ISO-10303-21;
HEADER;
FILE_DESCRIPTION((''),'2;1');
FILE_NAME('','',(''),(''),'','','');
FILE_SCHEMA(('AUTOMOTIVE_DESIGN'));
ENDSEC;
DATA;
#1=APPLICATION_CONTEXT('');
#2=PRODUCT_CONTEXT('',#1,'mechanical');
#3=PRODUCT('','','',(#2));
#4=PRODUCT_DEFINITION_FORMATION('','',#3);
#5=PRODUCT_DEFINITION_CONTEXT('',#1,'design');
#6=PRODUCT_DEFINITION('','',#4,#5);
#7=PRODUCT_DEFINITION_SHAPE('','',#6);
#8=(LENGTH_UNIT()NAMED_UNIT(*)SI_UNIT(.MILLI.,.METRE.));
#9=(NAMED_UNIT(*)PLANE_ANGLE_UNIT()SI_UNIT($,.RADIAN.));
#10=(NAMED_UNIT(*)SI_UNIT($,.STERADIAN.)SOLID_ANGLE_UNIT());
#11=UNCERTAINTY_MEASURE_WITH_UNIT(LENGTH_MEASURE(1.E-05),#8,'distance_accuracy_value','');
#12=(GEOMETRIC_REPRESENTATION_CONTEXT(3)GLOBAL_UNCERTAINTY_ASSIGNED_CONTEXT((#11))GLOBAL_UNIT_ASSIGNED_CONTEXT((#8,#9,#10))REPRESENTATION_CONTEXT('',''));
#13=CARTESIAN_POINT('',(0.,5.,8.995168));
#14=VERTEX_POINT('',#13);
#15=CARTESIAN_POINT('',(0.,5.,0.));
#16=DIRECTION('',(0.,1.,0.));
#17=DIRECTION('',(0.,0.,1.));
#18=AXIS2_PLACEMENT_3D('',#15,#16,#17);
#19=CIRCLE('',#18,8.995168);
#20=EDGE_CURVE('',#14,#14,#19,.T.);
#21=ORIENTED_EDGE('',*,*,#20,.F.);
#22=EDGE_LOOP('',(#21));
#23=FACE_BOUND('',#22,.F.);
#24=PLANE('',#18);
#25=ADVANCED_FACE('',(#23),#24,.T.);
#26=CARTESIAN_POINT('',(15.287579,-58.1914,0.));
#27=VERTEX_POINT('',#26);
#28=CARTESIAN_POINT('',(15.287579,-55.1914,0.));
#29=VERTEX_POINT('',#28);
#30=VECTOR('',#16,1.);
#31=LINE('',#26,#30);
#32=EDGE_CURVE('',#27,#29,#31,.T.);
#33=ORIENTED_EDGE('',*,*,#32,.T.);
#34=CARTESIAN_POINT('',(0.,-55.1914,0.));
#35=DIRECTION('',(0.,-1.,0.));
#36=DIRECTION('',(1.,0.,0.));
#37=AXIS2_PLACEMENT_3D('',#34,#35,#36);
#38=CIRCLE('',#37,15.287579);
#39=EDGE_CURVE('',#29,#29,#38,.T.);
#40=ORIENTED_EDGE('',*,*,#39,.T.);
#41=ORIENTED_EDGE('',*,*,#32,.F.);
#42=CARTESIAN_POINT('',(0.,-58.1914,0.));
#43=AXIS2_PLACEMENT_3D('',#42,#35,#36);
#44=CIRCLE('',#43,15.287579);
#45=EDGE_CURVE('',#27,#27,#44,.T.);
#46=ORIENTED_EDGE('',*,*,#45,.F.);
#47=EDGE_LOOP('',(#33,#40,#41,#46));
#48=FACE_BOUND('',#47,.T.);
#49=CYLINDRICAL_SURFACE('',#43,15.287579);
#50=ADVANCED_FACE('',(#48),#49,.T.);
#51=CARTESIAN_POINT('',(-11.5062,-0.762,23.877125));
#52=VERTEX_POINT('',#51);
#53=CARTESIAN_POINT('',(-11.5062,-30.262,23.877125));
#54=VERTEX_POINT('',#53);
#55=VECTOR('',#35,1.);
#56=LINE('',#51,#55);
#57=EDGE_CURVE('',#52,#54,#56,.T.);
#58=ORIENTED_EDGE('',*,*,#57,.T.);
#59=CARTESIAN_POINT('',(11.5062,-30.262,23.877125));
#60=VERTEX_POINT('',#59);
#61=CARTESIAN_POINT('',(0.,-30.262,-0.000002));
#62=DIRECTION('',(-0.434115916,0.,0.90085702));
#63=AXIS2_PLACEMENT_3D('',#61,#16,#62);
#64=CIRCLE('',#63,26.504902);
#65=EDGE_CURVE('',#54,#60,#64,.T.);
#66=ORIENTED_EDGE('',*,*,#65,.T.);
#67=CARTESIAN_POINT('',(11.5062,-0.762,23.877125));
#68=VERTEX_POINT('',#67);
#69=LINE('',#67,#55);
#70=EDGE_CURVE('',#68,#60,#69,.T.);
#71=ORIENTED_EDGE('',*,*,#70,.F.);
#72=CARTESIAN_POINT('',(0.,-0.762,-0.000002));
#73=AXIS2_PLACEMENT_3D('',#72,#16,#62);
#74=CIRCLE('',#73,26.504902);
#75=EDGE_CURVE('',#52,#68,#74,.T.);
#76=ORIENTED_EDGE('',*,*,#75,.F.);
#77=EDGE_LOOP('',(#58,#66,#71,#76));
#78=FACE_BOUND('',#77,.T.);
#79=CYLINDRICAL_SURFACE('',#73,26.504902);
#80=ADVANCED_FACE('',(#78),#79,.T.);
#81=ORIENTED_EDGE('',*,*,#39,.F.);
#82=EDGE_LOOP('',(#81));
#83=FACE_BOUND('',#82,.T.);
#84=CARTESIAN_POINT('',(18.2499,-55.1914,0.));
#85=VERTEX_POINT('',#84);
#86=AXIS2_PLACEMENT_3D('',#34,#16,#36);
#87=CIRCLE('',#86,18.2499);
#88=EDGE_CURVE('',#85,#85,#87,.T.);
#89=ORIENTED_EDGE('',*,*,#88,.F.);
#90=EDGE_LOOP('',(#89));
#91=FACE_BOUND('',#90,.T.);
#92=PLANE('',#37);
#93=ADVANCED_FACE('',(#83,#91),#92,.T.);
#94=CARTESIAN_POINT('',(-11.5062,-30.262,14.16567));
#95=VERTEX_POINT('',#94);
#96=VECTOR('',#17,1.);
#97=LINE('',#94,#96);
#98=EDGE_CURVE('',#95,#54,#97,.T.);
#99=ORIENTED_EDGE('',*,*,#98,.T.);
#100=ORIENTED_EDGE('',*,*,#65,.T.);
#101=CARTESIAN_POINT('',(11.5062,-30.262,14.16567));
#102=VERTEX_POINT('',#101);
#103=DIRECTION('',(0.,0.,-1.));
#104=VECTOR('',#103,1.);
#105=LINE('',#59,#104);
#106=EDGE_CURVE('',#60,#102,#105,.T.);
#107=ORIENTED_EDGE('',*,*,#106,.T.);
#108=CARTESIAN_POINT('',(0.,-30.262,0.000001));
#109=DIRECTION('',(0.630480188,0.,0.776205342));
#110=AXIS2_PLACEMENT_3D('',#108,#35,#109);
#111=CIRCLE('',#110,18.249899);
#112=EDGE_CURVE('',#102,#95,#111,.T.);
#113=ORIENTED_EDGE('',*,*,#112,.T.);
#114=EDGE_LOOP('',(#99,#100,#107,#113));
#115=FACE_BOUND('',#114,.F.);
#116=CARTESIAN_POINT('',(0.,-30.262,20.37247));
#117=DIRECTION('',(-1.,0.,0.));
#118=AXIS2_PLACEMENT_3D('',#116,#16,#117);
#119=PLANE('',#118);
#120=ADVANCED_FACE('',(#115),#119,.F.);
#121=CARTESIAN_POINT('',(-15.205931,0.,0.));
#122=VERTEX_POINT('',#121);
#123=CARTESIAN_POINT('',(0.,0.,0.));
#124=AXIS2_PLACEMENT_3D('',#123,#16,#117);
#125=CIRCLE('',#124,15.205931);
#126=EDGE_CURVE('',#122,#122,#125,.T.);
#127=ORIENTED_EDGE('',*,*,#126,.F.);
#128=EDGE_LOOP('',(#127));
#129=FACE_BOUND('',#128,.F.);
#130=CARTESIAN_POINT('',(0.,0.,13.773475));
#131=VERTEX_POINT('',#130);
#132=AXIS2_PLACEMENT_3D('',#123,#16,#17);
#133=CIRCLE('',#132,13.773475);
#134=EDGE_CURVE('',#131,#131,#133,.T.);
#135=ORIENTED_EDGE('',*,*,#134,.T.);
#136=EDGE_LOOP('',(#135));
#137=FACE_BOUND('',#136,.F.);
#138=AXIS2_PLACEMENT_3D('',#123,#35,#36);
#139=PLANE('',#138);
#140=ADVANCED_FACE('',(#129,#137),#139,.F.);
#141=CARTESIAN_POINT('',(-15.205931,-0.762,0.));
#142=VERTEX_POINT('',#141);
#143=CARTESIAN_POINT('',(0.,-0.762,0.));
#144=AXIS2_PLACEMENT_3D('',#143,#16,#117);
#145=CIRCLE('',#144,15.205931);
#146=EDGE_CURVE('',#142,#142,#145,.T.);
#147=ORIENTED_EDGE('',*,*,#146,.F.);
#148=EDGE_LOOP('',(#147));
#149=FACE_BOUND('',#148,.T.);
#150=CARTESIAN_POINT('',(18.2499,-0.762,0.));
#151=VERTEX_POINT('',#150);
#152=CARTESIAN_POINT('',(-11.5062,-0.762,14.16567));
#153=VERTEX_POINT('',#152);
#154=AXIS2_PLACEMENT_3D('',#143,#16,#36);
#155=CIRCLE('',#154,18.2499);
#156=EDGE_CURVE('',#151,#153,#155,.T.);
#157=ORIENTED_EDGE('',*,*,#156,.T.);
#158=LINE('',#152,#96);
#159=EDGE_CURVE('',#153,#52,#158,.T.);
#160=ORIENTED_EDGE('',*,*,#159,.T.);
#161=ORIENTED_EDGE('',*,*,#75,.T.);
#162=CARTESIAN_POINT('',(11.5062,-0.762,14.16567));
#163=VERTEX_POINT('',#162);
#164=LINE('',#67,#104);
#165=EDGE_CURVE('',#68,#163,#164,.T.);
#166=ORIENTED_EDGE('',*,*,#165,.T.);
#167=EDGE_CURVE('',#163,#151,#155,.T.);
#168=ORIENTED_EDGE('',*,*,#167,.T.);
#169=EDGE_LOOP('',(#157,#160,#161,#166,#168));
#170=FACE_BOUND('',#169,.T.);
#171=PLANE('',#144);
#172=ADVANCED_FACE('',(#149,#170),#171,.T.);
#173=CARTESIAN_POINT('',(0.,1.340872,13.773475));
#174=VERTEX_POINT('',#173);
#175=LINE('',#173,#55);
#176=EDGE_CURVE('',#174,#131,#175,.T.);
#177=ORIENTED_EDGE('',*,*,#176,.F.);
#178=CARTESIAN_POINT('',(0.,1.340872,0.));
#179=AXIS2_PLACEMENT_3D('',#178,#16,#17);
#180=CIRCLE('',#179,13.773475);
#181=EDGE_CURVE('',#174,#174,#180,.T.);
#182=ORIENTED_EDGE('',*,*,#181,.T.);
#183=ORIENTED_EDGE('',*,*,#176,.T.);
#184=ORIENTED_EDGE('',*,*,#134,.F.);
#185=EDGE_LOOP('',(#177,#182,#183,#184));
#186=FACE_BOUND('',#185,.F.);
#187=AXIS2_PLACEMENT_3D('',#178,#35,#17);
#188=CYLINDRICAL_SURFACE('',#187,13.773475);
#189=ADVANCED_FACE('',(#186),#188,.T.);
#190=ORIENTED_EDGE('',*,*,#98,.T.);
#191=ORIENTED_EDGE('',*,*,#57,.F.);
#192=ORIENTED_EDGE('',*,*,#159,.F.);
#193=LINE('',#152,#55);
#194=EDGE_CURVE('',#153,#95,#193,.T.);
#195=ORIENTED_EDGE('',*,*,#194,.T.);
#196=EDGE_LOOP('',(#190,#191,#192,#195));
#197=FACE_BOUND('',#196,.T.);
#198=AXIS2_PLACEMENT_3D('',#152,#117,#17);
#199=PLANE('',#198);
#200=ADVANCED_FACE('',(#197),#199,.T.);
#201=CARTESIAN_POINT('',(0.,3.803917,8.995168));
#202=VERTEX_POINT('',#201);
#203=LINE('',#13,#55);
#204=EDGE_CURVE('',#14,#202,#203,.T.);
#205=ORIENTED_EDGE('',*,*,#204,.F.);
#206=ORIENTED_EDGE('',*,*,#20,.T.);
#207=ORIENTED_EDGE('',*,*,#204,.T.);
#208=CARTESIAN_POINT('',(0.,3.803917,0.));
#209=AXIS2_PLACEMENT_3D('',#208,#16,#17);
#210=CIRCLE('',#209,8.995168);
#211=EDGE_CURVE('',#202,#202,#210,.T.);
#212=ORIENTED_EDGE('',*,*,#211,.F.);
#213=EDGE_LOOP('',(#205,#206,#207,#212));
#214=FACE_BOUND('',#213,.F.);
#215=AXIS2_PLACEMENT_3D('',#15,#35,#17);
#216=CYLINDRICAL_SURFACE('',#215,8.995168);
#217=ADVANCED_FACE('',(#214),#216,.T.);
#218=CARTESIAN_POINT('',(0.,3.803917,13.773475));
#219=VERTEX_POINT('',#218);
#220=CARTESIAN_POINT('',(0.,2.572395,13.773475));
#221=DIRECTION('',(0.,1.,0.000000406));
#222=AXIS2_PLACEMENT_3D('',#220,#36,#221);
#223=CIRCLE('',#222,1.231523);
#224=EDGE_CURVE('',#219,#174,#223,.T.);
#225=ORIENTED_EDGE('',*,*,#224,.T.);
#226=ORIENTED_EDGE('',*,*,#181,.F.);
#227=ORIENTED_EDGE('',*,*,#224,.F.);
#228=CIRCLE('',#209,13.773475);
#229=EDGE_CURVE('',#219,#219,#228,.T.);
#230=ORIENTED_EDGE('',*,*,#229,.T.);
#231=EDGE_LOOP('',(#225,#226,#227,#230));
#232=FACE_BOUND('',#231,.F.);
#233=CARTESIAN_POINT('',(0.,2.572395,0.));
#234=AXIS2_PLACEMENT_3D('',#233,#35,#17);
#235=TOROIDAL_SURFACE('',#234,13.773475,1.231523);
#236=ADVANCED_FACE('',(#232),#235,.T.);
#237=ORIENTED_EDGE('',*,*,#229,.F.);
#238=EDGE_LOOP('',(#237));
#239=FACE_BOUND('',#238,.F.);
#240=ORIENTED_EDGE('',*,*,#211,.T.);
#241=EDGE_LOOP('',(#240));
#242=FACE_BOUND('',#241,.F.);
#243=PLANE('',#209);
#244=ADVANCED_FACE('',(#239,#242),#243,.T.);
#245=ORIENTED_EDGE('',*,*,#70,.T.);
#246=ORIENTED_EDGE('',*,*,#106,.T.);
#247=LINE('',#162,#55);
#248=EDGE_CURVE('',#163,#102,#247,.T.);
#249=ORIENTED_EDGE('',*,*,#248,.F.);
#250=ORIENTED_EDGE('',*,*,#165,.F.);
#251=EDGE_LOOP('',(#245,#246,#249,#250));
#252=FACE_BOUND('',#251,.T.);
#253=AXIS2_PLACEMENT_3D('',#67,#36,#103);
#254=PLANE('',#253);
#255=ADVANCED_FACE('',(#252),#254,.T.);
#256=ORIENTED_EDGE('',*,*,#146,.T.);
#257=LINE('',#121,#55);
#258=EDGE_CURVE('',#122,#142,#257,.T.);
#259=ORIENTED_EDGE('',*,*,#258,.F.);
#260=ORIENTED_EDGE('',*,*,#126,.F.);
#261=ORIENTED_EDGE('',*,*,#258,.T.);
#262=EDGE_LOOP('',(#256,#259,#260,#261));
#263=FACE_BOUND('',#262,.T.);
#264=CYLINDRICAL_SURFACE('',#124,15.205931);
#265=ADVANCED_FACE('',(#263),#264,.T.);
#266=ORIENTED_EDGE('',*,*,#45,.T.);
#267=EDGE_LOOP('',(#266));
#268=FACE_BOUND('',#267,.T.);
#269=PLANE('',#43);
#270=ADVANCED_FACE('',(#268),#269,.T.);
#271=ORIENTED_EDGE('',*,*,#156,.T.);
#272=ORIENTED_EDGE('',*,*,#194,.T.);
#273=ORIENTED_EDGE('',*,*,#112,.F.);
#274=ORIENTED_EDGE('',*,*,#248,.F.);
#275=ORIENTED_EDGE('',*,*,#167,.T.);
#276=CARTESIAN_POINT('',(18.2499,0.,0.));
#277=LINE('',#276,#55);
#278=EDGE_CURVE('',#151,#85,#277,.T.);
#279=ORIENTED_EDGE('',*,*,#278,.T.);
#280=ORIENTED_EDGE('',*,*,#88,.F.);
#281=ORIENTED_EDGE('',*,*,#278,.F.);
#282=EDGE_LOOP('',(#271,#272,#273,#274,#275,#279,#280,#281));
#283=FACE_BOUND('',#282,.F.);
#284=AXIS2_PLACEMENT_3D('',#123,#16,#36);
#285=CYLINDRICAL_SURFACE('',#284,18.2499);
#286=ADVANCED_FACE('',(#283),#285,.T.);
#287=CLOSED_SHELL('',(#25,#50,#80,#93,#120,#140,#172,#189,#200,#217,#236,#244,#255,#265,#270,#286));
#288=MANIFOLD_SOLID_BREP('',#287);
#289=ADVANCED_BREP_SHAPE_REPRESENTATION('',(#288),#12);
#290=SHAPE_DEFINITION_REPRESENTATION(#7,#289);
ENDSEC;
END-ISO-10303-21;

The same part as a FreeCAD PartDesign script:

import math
import FreeCAD as App
import Part
import Sketcher

V = App.Vector
Q = App.Units.Quantity

doc = App.newDocument("Part")
body = doc.addObject("PartDesign::Body", "Body")

# Sketch on XZ plane
sketch1 = doc.addObject("Sketcher::SketchObject", "Sketch")
body.addObject(sketch1)
sketch1.AttachmentSupport = (doc.XZ_Plane, [""])
sketch1.MapMode = "FlatFace"
sketch1.addGeometry(Part.Circle(V(0, 0, 0), V(0, 0, 1), 18), False)
sketch1.addConstraint([
    Sketcher.Constraint("Coincident", 0, 3, -1, 1),
    Sketcher.Constraint("Diameter", 0, Q("1.437 in")),
])
pad1 = doc.addObject("PartDesign::Pad", "Pad")
body.addObject(pad1)
pad1.Profile = sketch1
pad1.Length = Q("2.291 in")

# Sketch on XZ plane
sketch2 = doc.addObject("Sketcher::SketchObject", "Sketch001")
body.addObject(sketch2)
sketch2.AttachmentSupport = (doc.XZ_Plane, [""])
sketch2.MapMode = "FlatFace"
sketch2.addGeometry([
    Part.Circle(V(0, 0, 0), V(0, 0, 1), 20),
    Part.Circle(V(0, 0, 0), V(0, 0, 1), 15),
], False)
sketch2.addConstraint([
    Sketcher.Constraint("Coincident", 0, 3, -1, 1),
    Sketcher.Constraint("Coincident", 1, 3, -1, 1),
    Sketcher.Constraint("Diameter", 1, 30.411862),
    Sketcher.Constraint("Diameter", 0, 39.269404),
])
pocket1 = doc.addObject("PartDesign::Pocket", "Pocket")
body.addObject(pocket1)
pocket1.Profile = sketch2
pocket1.Length = Q("0.03 in")
pocket1.Reversed = True

# Sketch on XZ plane
sketch3 = doc.addObject("Sketcher::SketchObject", "Sketch002")
body.addObject(sketch3)
sketch3.AttachmentSupport = (doc.XZ_Plane, [""])
sketch3.MapMode = "FlatFace"
sketch3.AttachmentOffset = App.Placement(V(0, 0, 0.03 * 25.4), App.Rotation())
sketch3.addGeometry([
    Part.LineSegment(V(12, 24, 0), V(12, 14, 0)),
    Part.ArcOfCircle(Part.Circle(V(0, 0, 0), V(0, 0, 1), 18), math.radians(51), math.radians(129)),
    Part.LineSegment(V(-12, 14, 0), V(-12, 24, 0)),
    Part.ArcOfCircle(Part.Circle(V(0, 0, 0), V(0, 0, 1), 27), math.radians(64), math.radians(116)),
], False)
sketch3.addConstraint([
    Sketcher.Constraint("Coincident", 0, 2, 1, 1),
    Sketcher.Constraint("Coincident", 1, 2, 2, 1),
    Sketcher.Constraint("Coincident", 2, 2, 3, 2),
    Sketcher.Constraint("Coincident", 3, 1, 0, 1),
    Sketcher.Constraint("Vertical", 0),
    Sketcher.Constraint("Vertical", 2),
    Sketcher.Constraint("Coincident", 1, 3, -1, 1),
    Sketcher.Constraint("Coincident", 3, 3, -1, 1),
    Sketcher.Constraint("Horizontal", 0, 2, 1, 2),
    Sketcher.Constraint("Radius", 1, Q("0.7185 in")),
    Sketcher.Constraint("Radius", 3, Q("1.0435001 in")),
    Sketcher.Constraint("DistanceX", -1, 1, 0, 2, Q("0.453 in")),
])
pad2 = doc.addObject("PartDesign::Pad", "Pad001")
body.addObject(pad2)
pad2.Profile = sketch3
pad2.Length = 29.5

# Sketch on YZ plane
sketch4 = doc.addObject("Sketcher::SketchObject", "Sketch003")
body.addObject(sketch4)
sketch4.AttachmentSupport = (doc.YZ_Plane, [""])
sketch4.MapMode = "FlatFace"
sketch4.addGeometry([
    Part.LineSegment(V(5, 0, 0), V(5, 9, 0)),  # 0
    Part.LineSegment(V(5, 9, 0), V(3.8, 9, 0)),  # 1
    Part.LineSegment(V(3.8, 9, 0), V(3.8, 13.8, 0)),  # 2
    Part.ArcOfCircle(Part.Circle(V(2.6, 13.8, 0), V(0, 0, 1), 1.2), math.radians(0), math.radians(180)),  # 3
    Part.LineSegment(V(1.3, 13.8, 0), V(0, 13.8, 0)),  # 4
    Part.LineSegment(V(0, 13.8, 0), V(0, 0, 0)),  # 5
    Part.LineSegment(V(0, 0, 0), V(5, 0, 0)),  # 6
], False)
sketch4.addConstraint([
    Sketcher.Constraint("Coincident", 0, 2, 1, 1),
    Sketcher.Constraint("Coincident", 1, 2, 2, 1),
    Sketcher.Constraint("Tangent", 2, 2, 3, 1),
    Sketcher.Constraint("Coincident", 3, 2, 4, 1),
    Sketcher.Constraint("Coincident", 4, 2, 5, 1),
    Sketcher.Constraint("Coincident", 5, 2, 6, 1),
    Sketcher.Constraint("Coincident", 6, 2, 0, 1),
    Sketcher.Constraint("Vertical", 0),
    Sketcher.Constraint("Horizontal", 1),
    Sketcher.Constraint("Vertical", 2),
    Sketcher.Constraint("Horizontal", 4),
    Sketcher.Constraint("Vertical", 5),
    Sketcher.Constraint("Horizontal", 6),
    Sketcher.Constraint("Coincident", 5, 2, -1, 1),
    Sketcher.Constraint("Horizontal", 2, 2, 3, 2),
    Sketcher.Constraint("DistanceX", 6, 1, 6, 2, 5.0),
    Sketcher.Constraint("Radius", 3, 1.231523),
    Sketcher.Constraint("DistanceX", 1, 2, 1, 1, 1.196083),
    Sketcher.Constraint("DistanceY", 0, 1, 0, 2, 8.995168),
    Sketcher.Constraint("DistanceY", 2, 1, 2, 2, 4.778307),
])
revolution = doc.addObject("PartDesign::Revolution", "Revolution")
body.addObject(revolution)
revolution.Profile = sketch4
revolution.ReferenceAxis = (sketch4, ["H_Axis"])
revolution.Angle = 360

# Sketch on XZ plane
sketch5 = doc.addObject("Sketcher::SketchObject", "Sketch004")
body.addObject(sketch5)
sketch5.AttachmentSupport = (doc.XZ_Plane, [""])
sketch5.MapMode = "FlatFace"
sketch5.AttachmentOffset = App.Placement(V(0, 0, 2.291 * 25.4), App.Rotation())
sketch5.addGeometry([
    Part.Circle(V(0, 0, 0), V(0, 0, 1), 20),
    Part.Circle(V(0, 0, 0), V(0, 0, 1), 15),
], False)
sketch5.addConstraint([
    Sketcher.Constraint("Coincident", 0, 3, -1, 1),
    Sketcher.Constraint("Coincident", 1, 3, -1, 1),
    Sketcher.Constraint("Diameter", 0, 39.953188),
    Sketcher.Constraint("Diameter", 1, 30.575158),
])
pocket2 = doc.addObject("PartDesign::Pocket", "Pocket001")
body.addObject(pocket2)
pocket2.Profile = sketch5
pocket2.Length = 3

doc.recompute()
